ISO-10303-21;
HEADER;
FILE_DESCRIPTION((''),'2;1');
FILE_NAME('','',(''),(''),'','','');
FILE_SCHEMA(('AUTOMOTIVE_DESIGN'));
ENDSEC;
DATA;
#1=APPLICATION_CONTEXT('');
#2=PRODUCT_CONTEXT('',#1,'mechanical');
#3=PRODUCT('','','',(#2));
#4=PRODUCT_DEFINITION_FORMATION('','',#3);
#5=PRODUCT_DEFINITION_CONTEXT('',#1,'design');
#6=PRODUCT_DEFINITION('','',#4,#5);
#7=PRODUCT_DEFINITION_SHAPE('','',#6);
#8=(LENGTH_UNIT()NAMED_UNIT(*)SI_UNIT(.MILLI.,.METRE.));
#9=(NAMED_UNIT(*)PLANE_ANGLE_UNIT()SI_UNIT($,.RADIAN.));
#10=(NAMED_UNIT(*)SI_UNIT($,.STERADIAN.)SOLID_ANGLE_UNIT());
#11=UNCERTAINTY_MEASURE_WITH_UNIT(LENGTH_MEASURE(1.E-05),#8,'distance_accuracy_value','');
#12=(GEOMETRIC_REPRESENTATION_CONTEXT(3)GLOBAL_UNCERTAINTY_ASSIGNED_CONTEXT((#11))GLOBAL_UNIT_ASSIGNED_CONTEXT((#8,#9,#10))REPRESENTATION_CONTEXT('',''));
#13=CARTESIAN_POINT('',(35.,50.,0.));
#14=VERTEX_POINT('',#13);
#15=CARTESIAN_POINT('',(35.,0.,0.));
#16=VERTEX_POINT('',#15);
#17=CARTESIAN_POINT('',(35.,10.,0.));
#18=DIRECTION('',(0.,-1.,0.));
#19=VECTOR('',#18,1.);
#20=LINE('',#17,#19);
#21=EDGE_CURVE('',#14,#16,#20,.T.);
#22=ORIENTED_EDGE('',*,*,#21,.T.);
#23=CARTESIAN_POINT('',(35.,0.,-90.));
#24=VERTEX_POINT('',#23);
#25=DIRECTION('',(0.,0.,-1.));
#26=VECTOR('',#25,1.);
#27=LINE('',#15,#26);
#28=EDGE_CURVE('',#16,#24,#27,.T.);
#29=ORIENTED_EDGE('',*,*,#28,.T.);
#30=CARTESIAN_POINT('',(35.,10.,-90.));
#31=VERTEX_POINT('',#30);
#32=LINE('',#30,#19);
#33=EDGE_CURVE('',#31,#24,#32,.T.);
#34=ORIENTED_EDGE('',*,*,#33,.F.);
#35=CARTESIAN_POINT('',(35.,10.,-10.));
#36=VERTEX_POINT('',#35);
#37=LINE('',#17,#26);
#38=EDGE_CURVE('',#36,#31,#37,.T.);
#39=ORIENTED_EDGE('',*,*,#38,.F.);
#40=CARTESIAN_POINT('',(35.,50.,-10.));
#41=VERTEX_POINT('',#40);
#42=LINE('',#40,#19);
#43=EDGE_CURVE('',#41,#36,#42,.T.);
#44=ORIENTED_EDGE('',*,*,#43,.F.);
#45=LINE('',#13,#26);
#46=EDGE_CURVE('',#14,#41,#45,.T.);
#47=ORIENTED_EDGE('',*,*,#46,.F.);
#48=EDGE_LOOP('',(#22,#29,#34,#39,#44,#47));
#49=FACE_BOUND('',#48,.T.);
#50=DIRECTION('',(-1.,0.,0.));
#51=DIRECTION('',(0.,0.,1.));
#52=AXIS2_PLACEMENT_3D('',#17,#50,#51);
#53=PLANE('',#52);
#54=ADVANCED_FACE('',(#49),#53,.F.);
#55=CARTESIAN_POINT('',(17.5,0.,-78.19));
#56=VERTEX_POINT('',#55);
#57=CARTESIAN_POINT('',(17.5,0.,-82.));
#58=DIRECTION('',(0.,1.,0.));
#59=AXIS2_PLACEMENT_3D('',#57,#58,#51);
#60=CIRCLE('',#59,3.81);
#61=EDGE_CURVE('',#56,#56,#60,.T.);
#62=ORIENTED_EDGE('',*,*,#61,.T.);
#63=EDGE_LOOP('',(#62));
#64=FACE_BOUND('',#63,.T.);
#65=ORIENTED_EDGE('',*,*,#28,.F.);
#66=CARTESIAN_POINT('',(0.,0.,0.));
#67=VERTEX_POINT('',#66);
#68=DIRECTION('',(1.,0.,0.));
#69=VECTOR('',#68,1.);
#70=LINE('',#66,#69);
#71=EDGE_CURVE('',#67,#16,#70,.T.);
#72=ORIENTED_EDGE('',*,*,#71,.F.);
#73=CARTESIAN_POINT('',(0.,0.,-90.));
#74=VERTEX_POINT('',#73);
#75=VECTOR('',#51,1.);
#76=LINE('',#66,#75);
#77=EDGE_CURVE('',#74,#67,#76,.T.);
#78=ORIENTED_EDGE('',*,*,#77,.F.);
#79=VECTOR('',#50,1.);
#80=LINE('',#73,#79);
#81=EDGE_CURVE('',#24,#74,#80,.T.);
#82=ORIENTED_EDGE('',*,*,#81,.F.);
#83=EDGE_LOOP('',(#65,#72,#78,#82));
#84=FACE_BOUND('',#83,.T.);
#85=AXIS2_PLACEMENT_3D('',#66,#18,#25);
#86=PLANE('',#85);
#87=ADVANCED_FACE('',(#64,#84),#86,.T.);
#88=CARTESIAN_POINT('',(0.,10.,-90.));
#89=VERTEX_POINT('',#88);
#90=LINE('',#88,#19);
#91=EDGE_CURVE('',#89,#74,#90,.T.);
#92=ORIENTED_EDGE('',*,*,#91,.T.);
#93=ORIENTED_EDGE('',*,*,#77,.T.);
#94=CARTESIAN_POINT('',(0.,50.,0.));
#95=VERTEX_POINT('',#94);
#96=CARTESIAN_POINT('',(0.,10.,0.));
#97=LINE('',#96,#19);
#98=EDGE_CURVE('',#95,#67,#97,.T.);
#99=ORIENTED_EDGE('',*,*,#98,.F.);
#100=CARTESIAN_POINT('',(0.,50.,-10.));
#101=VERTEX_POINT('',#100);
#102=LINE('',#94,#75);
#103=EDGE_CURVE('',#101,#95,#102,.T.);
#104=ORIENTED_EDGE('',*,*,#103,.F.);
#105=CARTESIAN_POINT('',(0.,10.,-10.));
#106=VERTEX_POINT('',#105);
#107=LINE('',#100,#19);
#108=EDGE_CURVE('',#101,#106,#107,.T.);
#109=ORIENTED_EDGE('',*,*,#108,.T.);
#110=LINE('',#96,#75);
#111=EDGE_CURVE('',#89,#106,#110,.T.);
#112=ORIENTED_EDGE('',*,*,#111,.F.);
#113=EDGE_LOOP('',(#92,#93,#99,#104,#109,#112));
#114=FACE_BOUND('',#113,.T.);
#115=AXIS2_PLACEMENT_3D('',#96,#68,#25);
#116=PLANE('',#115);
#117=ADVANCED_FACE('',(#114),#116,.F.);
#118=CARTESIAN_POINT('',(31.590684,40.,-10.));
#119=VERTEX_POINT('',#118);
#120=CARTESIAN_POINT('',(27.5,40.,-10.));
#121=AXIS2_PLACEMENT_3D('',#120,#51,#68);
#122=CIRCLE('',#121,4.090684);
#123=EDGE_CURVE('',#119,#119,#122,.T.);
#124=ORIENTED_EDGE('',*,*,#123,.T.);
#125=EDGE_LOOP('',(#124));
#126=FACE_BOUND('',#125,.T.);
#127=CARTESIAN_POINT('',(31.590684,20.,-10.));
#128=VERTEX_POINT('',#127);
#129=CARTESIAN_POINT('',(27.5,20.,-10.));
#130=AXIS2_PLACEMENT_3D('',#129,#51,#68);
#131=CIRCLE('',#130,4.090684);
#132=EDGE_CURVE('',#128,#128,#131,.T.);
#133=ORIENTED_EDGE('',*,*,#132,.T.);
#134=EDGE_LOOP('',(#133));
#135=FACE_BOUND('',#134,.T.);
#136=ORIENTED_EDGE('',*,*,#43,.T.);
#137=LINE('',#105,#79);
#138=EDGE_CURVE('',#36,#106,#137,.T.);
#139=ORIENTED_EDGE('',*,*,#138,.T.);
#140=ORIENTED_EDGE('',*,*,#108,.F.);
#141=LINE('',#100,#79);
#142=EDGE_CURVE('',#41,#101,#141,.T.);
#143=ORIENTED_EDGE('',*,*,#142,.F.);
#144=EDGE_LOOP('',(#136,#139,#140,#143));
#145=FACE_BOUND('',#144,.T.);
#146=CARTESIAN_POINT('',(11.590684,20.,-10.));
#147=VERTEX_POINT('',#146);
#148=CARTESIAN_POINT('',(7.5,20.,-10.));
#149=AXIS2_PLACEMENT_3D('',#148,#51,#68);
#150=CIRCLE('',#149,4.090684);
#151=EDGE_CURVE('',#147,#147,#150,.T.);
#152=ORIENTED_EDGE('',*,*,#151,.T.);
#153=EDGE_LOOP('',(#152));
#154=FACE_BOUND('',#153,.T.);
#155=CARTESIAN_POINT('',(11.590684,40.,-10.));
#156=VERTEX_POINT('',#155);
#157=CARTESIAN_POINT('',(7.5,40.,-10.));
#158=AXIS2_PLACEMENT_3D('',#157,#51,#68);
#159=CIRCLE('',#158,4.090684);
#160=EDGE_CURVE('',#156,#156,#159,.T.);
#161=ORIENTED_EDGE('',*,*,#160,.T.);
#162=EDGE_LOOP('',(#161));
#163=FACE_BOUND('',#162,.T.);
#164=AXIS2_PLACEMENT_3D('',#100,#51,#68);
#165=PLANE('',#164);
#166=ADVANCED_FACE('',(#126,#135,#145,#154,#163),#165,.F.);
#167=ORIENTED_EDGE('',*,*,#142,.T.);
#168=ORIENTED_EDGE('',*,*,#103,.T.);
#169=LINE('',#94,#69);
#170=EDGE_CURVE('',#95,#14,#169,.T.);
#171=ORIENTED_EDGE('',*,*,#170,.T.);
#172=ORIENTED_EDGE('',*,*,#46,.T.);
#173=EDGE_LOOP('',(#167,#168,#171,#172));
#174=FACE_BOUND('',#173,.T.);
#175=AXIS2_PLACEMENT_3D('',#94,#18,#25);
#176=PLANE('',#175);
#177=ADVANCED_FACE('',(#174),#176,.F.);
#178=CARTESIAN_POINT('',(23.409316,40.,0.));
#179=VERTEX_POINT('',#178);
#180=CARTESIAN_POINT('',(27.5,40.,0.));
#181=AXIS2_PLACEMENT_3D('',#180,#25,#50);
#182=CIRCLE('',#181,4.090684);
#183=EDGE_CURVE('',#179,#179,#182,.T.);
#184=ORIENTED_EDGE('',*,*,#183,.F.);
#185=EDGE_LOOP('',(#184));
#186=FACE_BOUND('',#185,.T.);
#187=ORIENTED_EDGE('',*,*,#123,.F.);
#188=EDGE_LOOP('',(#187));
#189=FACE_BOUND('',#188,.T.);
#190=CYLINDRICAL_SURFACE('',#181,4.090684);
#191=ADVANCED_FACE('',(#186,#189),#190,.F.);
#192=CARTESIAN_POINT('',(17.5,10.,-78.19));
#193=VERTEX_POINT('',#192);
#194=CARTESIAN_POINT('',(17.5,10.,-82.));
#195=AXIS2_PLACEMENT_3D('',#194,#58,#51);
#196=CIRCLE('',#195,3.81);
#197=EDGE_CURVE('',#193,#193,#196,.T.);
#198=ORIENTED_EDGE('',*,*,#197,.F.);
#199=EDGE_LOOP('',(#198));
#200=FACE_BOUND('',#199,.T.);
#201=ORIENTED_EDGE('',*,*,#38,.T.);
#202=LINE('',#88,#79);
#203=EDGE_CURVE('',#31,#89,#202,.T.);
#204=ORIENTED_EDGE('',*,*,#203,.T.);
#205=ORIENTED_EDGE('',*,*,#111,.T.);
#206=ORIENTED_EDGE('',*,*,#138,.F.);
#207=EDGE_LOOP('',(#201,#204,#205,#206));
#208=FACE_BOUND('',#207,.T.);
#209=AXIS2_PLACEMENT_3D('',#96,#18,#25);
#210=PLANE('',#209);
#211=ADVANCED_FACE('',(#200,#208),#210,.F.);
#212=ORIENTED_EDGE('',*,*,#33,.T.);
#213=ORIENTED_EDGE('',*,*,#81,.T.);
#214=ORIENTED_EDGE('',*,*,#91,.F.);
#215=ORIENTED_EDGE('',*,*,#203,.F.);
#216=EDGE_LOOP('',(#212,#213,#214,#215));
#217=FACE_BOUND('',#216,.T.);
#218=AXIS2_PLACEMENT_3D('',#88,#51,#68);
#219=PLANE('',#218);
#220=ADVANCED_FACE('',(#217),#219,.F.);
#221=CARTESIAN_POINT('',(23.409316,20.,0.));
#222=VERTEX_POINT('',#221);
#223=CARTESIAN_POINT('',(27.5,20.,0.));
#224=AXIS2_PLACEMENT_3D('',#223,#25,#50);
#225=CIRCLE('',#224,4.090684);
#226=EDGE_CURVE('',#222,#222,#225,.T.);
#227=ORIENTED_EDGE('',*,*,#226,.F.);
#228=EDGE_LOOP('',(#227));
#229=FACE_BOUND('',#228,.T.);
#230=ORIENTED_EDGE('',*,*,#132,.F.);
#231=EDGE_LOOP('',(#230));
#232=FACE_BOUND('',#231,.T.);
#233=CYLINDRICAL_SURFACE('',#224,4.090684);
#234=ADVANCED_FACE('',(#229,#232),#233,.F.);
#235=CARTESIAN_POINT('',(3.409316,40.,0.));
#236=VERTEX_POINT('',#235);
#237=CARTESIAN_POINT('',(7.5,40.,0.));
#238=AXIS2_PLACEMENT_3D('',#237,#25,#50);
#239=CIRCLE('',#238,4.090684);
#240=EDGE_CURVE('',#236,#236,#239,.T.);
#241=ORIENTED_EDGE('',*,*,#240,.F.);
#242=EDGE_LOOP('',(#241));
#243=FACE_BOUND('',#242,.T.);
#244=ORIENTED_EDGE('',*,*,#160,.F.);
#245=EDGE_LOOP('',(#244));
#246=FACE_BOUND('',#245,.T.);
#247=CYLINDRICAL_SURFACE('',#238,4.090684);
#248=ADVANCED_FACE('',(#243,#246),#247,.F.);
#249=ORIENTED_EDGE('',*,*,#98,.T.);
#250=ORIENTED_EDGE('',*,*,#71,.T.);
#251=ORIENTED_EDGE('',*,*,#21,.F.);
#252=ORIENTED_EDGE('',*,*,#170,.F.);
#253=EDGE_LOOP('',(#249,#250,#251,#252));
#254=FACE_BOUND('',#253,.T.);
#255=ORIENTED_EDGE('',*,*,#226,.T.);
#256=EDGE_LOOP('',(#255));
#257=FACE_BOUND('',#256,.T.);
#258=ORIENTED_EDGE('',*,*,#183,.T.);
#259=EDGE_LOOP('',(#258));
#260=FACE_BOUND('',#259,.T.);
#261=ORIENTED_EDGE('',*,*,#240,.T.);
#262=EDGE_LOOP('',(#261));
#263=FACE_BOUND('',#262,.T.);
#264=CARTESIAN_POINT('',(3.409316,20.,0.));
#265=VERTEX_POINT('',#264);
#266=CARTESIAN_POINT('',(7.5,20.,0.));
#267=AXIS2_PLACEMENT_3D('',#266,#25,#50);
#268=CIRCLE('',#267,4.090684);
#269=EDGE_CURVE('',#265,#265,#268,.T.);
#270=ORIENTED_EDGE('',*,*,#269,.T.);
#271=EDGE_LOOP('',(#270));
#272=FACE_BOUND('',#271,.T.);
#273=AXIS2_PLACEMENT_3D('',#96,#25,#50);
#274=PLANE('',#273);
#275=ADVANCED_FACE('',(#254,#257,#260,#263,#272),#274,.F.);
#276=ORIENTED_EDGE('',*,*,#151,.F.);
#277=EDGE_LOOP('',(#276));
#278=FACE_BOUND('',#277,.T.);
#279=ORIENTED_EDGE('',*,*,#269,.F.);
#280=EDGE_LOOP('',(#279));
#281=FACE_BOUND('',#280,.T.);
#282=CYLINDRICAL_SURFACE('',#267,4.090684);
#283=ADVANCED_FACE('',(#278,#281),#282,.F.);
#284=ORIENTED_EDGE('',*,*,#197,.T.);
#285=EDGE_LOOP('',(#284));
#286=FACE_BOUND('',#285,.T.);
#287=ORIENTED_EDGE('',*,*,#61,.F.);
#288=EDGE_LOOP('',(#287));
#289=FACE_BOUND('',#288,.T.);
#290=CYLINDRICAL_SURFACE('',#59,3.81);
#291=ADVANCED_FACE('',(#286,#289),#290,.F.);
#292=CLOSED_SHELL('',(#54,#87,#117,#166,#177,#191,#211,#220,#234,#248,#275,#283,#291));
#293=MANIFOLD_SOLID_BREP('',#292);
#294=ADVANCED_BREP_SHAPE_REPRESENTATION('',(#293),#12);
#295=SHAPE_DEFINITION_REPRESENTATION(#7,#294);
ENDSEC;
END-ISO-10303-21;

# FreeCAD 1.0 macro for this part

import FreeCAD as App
import Part
import Sketcher
from FreeCAD import Vector


def add_polygon(sketch, points):
    """Adds a closed chain of lines whose ends are joined by coincident constraints."""
    first, n = sketch.GeometryCount, len(points)
    for a, b in zip(points, points[1:] + points[:1]):
        sketch.addGeometry(Part.LineSegment(App.Vector(*a, 0), App.Vector(*b, 0)), False)
    for i in range(n):
        sketch.addConstraint(Sketcher.Constraint("Coincident", first + i, 2, first + (i + 1) % n, 1))

doc = App.newDocument("Part")
body = doc.addObject("PartDesign::Body", "Body")

# Sketch on XZ plane
sketch1 = body.newObject("Sketcher::SketchObject", "Sketch")
sketch1.AttachmentSupport = (doc.getObject("XZ_Plane"), [""])
sketch1.MapMode = "FlatFace"
add_polygon(sketch1, [(0, -90), (0, 0), (35, 0), (35, -90)])  # lines 0-3
sketch1.addConstraint([
    Sketcher.Constraint("Vertical", 0),
    Sketcher.Constraint("Horizontal", 1),
    Sketcher.Constraint("Vertical", 2),
    Sketcher.Constraint("Horizontal", 3),
    Sketcher.Constraint("Coincident", 0, 2, -1, 1),
    Sketcher.Constraint("DistanceX", 1, 1, 1, 2, 35.0),
    Sketcher.Constraint("DistanceY", 0, 1, 0, 2, 90.0),
])
pad1 = body.newObject("PartDesign::Pad", "Pad")
pad1.Profile = sketch1
pad1.Length = 10
pad1.Reversed = True

# Sketch on XZ plane
sketch2 = body.newObject("Sketcher::SketchObject", "Sketch001")
sketch2.AttachmentSupport = (doc.getObject("XZ_Plane"), [""])
sketch2.MapMode = "FlatFace"
sketch2.AttachmentOffset = App.Placement(Vector(0, 0, -10), App.Rotation())
add_polygon(sketch2, [(0, -10), (0, 0), (35, 0), (35, -10)])  # lines 0-3
sketch2.addConstraint([
    Sketcher.Constraint("Vertical", 0),
    Sketcher.Constraint("Horizontal", 1),
    Sketcher.Constraint("Vertical", 2),
    Sketcher.Constraint("Horizontal", 3),
    Sketcher.Constraint("Coincident", 0, 2, -1, 1),
    Sketcher.Constraint("DistanceX", 1, 1, 1, 2, 35.0),
    Sketcher.Constraint("DistanceY", 0, 1, 0, 2, 10.0),
])
pad2 = body.newObject("PartDesign::Pad", "Pad001")
pad2.Profile = sketch2
pad2.Length = 40
pad2.Reversed = True

# Sketch on XY plane
sketch3 = body.newObject("Sketcher::SketchObject", "Sketch002")
sketch3.AttachmentSupport = (doc.getObject("XY_Plane"), [""])
sketch3.MapMode = "FlatFace"
sketch3.AttachmentOffset = App.Placement(Vector(0, 0, -10), App.Rotation())
sketch3.addGeometry([
    Part.Circle(Vector(27.5, 40, 0), Vector(0, 0, 1), 4.090684),
    Part.Circle(Vector(7.5, 40, 0), Vector(0, 0, 1), 4.090684),
    Part.Circle(Vector(7.5, 20, 0), Vector(0, 0, 1), 4.090684),
    Part.Circle(Vector(27.5, 20, 0), Vector(0, 0, 1), 4.090684),
], False)
sketch3.addConstraint([
    Sketcher.Constraint("Equal", 0, 1),
    Sketcher.Constraint("Equal", 1, 2),
    Sketcher.Constraint("Equal", 2, 3),
    Sketcher.Constraint("Horizontal", 0, 3, 1, 3),
    Sketcher.Constraint("Horizontal", 2, 3, 3, 3),
    Sketcher.Constraint("Vertical", 1, 3, 2, 3),
    Sketcher.Constraint("Vertical", 0, 3, 3, 3),
    Sketcher.Constraint("DistanceY", -1, 1, 0, 3, 40.0),
    Sketcher.Constraint("DistanceY", -1, 1, 2, 3, 20.0),
    Sketcher.Constraint("DistanceX", 1, 3, 0, 3, 20.0),
    Sketcher.Constraint("DistanceX", -1, 1, 0, 3, 27.5),
    Sketcher.Constraint("Diameter", 0, 8.181369),
])
pocket1 = body.newObject("PartDesign::Pocket", "Pocket")
pocket1.Profile = sketch3
pocket1.Type = "ThroughAll"
pocket1.Midplane = True

# Sketch on XZ plane
sketch4 = body.newObject("Sketcher::SketchObject", "Sketch003")
sketch4.AttachmentSupport = (doc.getObject("XZ_Plane"), [""])
sketch4.MapMode = "FlatFace"
sketch4.AttachmentOffset = App.Placement(Vector(0, 0, -10), App.Rotation())
sketch4.addGeometry(Part.Circle(Vector(17.5, -82, 0), Vector(0, 0, 1), 3.81), False)
sketch4.addConstraint([
    Sketcher.Constraint("Diameter", 0, 7.62),
    Sketcher.Constraint("DistanceY", 0, 3, -1, 1, 82.0),
    Sketcher.Constraint("DistanceX", -1, 1, 0, 3, 17.5),
])
pocket2 = body.newObject("PartDesign::Pocket", "Pocket001")
pocket2.Profile = sketch4
pocket2.Type = "ThroughAll"
pocket2.Reversed = True

doc.recompute()
